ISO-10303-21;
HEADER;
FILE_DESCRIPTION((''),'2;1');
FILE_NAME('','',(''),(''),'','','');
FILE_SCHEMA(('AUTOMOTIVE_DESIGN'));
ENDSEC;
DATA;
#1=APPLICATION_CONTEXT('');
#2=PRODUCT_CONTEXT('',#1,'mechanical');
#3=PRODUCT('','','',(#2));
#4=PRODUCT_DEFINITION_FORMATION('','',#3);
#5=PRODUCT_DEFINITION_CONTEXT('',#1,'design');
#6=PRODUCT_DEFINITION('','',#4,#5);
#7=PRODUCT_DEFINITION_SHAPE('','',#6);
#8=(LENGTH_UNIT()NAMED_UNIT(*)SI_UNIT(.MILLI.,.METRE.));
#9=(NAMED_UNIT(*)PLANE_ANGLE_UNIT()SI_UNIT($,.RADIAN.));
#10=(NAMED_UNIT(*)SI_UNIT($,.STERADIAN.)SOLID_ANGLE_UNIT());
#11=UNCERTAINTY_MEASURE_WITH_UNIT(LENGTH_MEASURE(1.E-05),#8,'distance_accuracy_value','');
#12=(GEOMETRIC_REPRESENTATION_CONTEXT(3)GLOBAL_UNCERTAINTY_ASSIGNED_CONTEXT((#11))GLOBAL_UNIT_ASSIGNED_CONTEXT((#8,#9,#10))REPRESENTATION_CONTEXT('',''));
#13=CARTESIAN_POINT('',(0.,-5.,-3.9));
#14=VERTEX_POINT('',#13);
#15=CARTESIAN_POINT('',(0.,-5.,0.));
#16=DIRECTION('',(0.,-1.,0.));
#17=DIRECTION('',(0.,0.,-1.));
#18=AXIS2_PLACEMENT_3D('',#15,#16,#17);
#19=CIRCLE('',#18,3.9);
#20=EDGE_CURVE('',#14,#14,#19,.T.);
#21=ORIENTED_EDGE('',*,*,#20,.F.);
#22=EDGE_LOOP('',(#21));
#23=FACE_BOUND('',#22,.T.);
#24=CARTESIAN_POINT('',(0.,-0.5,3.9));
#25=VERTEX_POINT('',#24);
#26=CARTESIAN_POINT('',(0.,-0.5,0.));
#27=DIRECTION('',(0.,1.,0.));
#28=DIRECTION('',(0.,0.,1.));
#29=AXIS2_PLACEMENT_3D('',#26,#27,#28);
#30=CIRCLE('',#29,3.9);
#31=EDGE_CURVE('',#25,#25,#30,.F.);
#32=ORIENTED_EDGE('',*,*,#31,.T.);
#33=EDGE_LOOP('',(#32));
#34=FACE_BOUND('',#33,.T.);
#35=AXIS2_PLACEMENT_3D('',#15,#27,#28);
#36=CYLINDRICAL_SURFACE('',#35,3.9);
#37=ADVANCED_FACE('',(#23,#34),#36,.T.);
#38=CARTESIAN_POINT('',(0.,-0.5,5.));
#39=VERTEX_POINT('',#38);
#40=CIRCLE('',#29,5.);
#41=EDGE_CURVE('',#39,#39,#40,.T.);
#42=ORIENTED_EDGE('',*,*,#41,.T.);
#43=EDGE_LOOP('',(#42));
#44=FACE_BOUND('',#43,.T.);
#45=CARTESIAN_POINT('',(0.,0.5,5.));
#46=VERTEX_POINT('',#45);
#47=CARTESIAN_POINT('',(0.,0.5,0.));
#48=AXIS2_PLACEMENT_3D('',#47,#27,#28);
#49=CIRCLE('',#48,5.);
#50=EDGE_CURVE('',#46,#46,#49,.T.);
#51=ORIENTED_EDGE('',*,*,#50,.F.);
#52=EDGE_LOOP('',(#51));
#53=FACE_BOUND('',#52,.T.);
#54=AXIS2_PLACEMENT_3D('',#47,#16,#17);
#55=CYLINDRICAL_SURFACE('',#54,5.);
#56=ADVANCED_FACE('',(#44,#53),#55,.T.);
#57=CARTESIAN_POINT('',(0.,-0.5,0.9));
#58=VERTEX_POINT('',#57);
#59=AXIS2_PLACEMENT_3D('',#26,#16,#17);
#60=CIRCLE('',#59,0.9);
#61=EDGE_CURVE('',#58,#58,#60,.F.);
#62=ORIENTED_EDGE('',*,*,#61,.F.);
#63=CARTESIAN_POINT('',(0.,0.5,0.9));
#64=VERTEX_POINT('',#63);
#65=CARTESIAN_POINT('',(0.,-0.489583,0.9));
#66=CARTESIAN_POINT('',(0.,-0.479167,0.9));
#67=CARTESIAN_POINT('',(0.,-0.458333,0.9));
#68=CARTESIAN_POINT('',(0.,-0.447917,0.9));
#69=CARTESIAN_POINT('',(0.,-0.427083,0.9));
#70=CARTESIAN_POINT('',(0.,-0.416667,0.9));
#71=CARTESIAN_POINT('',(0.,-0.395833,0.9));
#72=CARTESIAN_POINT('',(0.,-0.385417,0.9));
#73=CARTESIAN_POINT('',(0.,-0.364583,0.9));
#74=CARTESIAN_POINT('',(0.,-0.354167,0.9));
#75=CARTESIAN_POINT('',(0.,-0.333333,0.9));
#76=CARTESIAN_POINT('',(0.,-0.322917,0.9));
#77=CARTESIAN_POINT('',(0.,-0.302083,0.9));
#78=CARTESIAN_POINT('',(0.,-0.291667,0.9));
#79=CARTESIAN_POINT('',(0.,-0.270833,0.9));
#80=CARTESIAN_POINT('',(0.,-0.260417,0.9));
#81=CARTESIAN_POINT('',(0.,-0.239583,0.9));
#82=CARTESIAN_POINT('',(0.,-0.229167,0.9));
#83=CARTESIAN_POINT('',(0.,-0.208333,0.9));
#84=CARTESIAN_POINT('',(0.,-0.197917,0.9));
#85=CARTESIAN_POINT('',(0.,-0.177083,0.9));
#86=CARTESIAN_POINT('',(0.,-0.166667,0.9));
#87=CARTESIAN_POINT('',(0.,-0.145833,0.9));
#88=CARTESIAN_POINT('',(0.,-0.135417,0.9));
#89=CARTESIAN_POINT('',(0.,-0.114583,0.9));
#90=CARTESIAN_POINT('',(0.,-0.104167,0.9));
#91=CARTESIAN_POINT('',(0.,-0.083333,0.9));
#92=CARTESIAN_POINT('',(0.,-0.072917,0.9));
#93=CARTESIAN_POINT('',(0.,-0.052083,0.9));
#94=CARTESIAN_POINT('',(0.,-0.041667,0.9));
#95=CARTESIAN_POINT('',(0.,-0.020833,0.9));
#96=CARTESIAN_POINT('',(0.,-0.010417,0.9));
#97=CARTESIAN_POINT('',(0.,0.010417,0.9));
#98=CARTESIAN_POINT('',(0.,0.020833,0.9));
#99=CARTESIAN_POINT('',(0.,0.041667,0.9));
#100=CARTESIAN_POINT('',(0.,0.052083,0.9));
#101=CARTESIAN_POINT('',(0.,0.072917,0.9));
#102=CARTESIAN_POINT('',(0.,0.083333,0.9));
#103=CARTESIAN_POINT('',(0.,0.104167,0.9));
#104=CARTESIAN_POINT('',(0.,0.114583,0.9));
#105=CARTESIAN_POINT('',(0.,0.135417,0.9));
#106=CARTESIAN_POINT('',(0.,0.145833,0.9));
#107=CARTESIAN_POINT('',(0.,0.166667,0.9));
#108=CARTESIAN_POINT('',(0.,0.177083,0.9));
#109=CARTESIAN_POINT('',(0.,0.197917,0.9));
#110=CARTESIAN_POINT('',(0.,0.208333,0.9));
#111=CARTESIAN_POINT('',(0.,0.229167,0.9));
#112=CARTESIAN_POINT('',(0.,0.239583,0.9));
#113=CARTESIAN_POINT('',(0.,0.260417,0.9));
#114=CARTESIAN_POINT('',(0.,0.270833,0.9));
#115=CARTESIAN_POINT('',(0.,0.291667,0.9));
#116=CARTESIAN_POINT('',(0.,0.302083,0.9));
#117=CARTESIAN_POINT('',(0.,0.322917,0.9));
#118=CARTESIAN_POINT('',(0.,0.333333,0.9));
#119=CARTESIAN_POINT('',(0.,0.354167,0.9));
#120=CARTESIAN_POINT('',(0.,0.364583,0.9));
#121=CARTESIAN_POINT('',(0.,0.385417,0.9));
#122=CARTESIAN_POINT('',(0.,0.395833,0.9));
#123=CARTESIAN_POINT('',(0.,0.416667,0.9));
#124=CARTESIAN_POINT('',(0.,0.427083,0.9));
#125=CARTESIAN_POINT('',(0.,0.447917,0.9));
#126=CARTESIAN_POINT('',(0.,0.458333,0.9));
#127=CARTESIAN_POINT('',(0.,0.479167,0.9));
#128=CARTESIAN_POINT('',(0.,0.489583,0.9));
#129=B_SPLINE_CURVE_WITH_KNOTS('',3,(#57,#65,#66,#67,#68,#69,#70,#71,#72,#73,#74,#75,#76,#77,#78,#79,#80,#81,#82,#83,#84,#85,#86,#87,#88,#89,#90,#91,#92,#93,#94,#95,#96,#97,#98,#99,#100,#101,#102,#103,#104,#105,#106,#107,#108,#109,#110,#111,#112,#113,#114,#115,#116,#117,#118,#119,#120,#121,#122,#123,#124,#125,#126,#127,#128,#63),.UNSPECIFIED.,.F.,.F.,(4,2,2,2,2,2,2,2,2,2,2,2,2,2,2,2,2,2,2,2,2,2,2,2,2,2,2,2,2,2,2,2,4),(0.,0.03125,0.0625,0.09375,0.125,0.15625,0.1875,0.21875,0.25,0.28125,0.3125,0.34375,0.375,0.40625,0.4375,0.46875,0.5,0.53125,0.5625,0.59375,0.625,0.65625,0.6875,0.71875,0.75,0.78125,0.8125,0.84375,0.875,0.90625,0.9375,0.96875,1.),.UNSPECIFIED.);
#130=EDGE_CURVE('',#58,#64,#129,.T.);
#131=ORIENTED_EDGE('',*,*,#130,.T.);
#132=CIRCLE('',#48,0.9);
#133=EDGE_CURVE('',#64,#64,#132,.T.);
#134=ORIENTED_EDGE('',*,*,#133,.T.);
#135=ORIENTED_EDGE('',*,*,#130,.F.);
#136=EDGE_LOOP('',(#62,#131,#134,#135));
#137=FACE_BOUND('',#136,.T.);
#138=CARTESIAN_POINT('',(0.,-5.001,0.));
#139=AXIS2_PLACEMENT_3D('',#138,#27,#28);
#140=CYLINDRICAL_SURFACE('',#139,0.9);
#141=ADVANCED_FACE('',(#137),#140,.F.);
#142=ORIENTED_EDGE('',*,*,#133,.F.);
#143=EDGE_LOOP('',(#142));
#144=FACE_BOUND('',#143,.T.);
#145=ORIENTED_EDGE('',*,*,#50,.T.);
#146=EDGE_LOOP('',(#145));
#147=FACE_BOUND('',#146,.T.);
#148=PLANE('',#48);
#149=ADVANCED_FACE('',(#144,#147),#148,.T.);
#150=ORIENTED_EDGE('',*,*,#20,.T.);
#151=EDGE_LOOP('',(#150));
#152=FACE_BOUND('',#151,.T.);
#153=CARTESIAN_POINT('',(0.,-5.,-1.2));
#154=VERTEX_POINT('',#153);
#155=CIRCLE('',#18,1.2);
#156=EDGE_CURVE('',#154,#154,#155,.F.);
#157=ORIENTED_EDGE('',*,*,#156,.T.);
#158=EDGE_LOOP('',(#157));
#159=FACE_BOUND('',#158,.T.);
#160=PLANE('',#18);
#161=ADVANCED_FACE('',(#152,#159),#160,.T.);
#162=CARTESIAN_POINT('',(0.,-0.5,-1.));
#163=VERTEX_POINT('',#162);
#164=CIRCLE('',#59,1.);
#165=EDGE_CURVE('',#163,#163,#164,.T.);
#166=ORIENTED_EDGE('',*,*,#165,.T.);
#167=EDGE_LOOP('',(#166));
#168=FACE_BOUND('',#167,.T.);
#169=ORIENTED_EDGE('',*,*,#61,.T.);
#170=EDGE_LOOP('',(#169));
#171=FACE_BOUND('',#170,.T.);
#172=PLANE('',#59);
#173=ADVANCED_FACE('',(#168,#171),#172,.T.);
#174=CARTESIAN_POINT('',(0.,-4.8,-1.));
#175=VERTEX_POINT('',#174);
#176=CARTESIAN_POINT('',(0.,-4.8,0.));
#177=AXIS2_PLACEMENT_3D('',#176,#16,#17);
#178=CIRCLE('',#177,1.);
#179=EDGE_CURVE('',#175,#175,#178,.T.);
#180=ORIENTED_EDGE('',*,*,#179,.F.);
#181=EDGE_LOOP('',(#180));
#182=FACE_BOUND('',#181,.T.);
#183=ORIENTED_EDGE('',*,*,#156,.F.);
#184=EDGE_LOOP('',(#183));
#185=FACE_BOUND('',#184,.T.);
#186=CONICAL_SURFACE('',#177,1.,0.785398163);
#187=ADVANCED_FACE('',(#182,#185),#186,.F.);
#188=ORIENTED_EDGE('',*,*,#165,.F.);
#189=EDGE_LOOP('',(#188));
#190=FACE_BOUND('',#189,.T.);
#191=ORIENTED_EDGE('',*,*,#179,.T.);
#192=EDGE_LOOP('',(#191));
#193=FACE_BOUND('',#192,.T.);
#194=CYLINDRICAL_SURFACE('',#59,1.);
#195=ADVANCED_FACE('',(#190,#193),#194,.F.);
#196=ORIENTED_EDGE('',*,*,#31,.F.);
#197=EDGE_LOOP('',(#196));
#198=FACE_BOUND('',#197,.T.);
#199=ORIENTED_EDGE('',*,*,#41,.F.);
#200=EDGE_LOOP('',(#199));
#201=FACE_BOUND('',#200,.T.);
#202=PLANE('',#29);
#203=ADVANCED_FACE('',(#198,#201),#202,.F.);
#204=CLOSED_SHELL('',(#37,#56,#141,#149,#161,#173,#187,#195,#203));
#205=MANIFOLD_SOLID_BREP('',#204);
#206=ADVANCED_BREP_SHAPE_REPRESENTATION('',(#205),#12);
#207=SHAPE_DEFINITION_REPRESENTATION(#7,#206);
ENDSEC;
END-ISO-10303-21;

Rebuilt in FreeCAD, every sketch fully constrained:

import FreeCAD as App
import Part
import Sketcher

V = App.Vector


def edges_at(feature, points):
    """Names of the edges that pass closest to the given points."""
    edges = feature.Shape.Edges
    near = lambda p: min(range(len(edges)), key=lambda i: edges[i].distToShape(Part.Vertex(*p))[0])
    return sorted({f"Edge{near(p) + 1}" for p in points})

doc = App.newDocument("Part")
body = doc.addObject("PartDesign::Body", "Body")

# Sketch on XZ plane
sketch1 = body.newObject("Sketcher::SketchObject", "Sketch")
sketch1.AttachmentSupport = (doc.getObject("XZ_Plane"), [""])
sketch1.MapMode = "FlatFace"
sketch1.addGeometry(Part.Circle(V(0, 0, 0), V(0, 0, 1), 5), False)
sketch1.addConstraint([
    Sketcher.Constraint("Coincident", 0, 3, -1, 1),
    Sketcher.Constraint("Diameter", 0, 10.0),
])
pad1 = body.newObject("PartDesign::Pad", "Pad")
pad1.Profile = sketch1
pad1.Length = 1
pad1.Midplane = True

# Sketch on XZ plane
sketch2 = body.newObject("Sketcher::SketchObject", "Sketch001")
sketch2.AttachmentSupport = (doc.getObject("XZ_Plane"), [""])
sketch2.MapMode = "FlatFace"
sketch2.AttachmentOffset = App.Placement(V(0, 0, 0.5), App.Rotation())
sketch2.addGeometry(Part.Circle(V(0, 0, 0), V(0, 0, 1), 3.9), False)
sketch2.addConstraint([
    Sketcher.Constraint("Coincident", 0, 3, -1, 1),
    Sketcher.Constraint("Diameter", 0, 7.8),
])
pad2 = body.newObject("PartDesign::Pad", "Pad001")
pad2.Profile = sketch2
pad2.Length = 4.5

# Sketch on XZ plane
sketch3 = body.newObject("Sketcher::SketchObject", "Sketch002")
sketch3.AttachmentSupport = (doc.getObject("XZ_Plane"), [""])
sketch3.MapMode = "FlatFace"
sketch3.AttachmentOffset = App.Placement(V(0, 0, 5), App.Rotation())
sketch3.addGeometry(Part.Circle(V(0, 0, 0), V(0, 0, 1), 1), False)
sketch3.addConstraint([
    Sketcher.Constraint("Coincident", 0, 3, -1, 1),
    Sketcher.Constraint("Diameter", 0, 2.0),
])
pocket1 = body.newObject("PartDesign::Pocket", "Pocket")
pocket1.Profile = sketch3
pocket1.Length = 4.5

# Sketch on XZ plane
sketch4 = body.newObject("Sketcher::SketchObject", "Sketch003")
sketch4.AttachmentSupport = (doc.getObject("XZ_Plane"), [""])
sketch4.MapMode = "FlatFace"
sketch4.AttachmentOffset = App.Placement(V(0, 0, -0.5), App.Rotation())
sketch4.addGeometry(Part.Circle(V(0, 0, 0), V(0, 0, 1), 0.9), False)
sketch4.addConstraint([
    Sketcher.Constraint("Coincident", 0, 3, -1, 1),
    Sketcher.Constraint("Diameter", 0, 1.8),
])
pocket2 = body.newObject("PartDesign::Pocket", "Pocket001")
pocket2.Profile = sketch4
pocket2.Type = "UpToFirst"
pocket2.Reversed = True
doc.recompute()

chamfer = body.newObject("PartDesign::Chamfer", "Chamfer")
chamfer.Base = (pocket2, edges_at(pocket2, [(0, -5, 1)]))
chamfer.Size = 0.2

doc.recompute()
